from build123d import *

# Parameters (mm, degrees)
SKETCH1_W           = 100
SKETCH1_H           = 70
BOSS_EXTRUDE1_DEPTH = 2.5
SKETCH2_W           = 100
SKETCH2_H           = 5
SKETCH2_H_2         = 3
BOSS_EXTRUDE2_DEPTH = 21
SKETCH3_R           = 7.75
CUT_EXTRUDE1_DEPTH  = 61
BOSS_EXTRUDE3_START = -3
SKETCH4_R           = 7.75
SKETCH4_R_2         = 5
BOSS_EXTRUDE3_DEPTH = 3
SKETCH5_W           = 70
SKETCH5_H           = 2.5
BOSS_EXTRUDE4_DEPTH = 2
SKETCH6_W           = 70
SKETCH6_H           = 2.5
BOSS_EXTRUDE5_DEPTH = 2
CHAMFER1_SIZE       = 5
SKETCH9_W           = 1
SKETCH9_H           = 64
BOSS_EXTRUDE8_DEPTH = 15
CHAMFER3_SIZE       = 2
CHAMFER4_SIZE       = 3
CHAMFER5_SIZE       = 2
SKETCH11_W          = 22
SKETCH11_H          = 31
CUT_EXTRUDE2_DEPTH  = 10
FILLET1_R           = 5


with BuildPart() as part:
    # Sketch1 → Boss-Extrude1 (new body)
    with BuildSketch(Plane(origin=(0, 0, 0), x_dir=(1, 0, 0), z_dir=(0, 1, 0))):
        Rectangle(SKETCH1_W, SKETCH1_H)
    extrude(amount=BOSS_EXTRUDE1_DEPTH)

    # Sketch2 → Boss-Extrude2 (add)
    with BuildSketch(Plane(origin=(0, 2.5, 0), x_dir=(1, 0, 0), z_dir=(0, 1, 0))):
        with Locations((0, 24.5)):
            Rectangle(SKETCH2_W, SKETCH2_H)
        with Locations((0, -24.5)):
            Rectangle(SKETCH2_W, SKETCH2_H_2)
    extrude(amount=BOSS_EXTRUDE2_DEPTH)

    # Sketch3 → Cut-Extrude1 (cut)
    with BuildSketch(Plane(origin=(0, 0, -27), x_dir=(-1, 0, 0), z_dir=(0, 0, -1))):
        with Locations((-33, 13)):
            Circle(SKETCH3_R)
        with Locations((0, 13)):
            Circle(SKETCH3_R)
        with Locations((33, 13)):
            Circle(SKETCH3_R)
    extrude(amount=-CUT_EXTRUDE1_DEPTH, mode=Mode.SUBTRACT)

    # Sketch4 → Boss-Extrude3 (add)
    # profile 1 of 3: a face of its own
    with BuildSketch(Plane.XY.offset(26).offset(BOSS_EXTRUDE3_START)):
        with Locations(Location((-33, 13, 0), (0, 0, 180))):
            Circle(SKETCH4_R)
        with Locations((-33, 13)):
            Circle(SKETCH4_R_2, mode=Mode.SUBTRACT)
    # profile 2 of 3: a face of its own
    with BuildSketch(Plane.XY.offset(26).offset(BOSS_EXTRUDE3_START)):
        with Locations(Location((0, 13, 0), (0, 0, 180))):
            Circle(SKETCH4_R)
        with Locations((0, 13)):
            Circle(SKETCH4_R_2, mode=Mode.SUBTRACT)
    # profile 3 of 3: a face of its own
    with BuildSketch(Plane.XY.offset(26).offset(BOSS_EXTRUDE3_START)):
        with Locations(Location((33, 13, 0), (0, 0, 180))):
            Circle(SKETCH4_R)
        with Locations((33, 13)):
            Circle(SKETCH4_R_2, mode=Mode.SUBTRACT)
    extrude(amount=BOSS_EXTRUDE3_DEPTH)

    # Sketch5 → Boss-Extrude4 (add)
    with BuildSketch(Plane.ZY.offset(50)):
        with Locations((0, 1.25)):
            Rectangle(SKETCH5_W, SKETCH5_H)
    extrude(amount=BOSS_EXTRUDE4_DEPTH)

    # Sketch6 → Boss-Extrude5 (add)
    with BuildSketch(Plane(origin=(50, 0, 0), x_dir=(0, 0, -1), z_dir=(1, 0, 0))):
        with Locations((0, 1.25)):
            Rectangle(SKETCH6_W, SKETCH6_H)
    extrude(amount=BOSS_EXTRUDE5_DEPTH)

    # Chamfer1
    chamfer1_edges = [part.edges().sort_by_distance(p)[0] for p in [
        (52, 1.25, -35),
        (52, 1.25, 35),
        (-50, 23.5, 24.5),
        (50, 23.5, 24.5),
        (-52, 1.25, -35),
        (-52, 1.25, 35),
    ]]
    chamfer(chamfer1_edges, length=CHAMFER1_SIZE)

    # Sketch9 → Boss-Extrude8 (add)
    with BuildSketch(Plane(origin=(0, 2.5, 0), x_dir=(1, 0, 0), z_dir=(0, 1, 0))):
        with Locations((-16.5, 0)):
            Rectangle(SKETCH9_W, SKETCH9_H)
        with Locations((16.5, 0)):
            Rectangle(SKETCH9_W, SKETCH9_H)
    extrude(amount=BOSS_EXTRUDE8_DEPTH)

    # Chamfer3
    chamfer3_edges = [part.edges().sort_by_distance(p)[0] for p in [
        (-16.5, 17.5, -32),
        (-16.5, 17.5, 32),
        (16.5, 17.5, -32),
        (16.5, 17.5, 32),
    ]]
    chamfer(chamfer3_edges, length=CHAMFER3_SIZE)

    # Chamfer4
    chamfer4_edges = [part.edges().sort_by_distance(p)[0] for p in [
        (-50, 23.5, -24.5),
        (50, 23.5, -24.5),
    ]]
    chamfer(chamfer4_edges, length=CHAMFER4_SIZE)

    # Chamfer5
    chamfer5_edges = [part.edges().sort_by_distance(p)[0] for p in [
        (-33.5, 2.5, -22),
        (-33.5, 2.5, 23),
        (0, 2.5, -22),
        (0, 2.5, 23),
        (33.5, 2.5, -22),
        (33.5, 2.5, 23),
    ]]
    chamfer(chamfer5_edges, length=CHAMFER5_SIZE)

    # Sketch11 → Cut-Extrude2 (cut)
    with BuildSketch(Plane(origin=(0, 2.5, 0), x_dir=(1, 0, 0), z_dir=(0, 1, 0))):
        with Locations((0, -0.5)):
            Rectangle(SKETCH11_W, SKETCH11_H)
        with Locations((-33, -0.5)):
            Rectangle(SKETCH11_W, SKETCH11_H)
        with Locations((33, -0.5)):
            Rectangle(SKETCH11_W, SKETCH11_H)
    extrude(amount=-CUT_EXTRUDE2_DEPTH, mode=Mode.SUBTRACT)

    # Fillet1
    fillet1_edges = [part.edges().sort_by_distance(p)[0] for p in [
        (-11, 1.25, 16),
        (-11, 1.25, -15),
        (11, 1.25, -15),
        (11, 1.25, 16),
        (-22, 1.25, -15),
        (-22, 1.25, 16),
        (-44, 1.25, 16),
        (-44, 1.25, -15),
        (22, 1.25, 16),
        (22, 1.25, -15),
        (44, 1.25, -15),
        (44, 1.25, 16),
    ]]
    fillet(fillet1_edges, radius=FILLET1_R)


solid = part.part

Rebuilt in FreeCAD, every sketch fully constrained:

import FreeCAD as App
import Part
import Sketcher


def edges_at(feature, points):
    """Names of the edges that pass closest to the given points."""
    edges = feature.Shape.Edges
    near = lambda p: min(range(len(edges)), key=lambda i: edges[i].distToShape(Part.Vertex(*p))[0])
    return sorted({f"Edge{near(p) + 1}" for p in points})


def add_polygon(sketch, points):
    """Adds a closed chain of lines whose ends are joined by coincident constraints."""
    first, n = sketch.GeometryCount, len(points)
    for a, b in zip(points, points[1:] + points[:1]):
        sketch.addGeometry(Part.LineSegment(App.Vector(*a, 0), App.Vector(*b, 0)), False)
    for i in range(n):
        sketch.addConstraint(Sketcher.Constraint("Coincident", first + i, 2, first + (i + 1) % n, 1))

doc = App.newDocument("Part")
body = doc.addObject("PartDesign::Body", "Body")

# Sketch on XZ plane
sketch1 = body.newObject("Sketcher::SketchObject", "Sketch")
sketch1.AttachmentSupport = (doc.getObject("XZ_Plane"), [""])
sketch1.MapMode = "FlatFace"
add_polygon(sketch1, [(-50, -35), (-50, 35), (50, 35), (50, -35)])  # lines 0-3
sketch1.addConstraint([
    Sketcher.Constraint("Vertical", 0),
    Sketcher.Constraint("Horizontal", 1),
    Sketcher.Constraint("Vertical", 2),
    Sketcher.Constraint("Horizontal", 3),
    Sketcher.Constraint("Symmetric", 0, 2, 2, 2, -1, 1),
    Sketcher.Constraint("DistanceX", 1, 1, 1, 2, 100.0),
    Sketcher.Constraint("DistanceY", 0, 1, 0, 2, 70.0),
])
pad1 = body.newObject("PartDesign::Pad", "Pad")
pad1.Profile = sketch1
pad1.Length = 2.5
pad1.Reversed = True

# Sketch on XZ plane
sketch2 = body.newObject("Sketcher::SketchObject", "Sketch001")
sketch2.AttachmentSupport = (doc.getObject("XZ_Plane"), [""])
sketch2.MapMode = "FlatFace"
sketch2.AttachmentOffset = App.Placement(App.Vector(0, 0, -2.5), App.Rotation())
add_polygon(sketch2, [(-50, -27), (-50, -22), (50, -22), (50, -27)])  # lines 0-3
add_polygon(sketch2, [(-50, 23), (-50, 26), (50, 26), (50, 23)])  # lines 4-7
sketch2.addConstraint([
    Sketcher.Constraint("Vertical", 0),
    Sketcher.Constraint("Horizontal", 1),
    Sketcher.Constraint("Vertical", 2),
    Sketcher.Constraint("Horizontal", 3),
    Sketcher.Constraint("Vertical", 4),
    Sketcher.Constraint("Horizontal", 5),
    Sketcher.Constraint("Vertical", 6),
    Sketcher.Constraint("Horizontal", 7),
    Sketcher.Constraint("Vertical", 3, 2, 4, 2),
    Sketcher.Constraint("Vertical", 2, 2, 5, 2),
    Sketcher.Constraint("DistanceX", 1, 1, 1, 2, 100.0),
    Sketcher.Constraint("DistanceY", 0, 1, 0, 2, 5.0),
    Sketcher.Constraint("DistanceY", 4, 1, 4, 2, 3.0),
    Sketcher.Constraint("DistanceX", 0, 2, -1, 1, 50.0),
    Sketcher.Constraint("DistanceY", 0, 2, -1, 1, 22.0),
    Sketcher.Constraint("DistanceY", -1, 1, 4, 2, 26.0),
])
pad2 = body.newObject("PartDesign::Pad", "Pad001")
pad2.Profile = sketch2
pad2.Length = 21
pad2.Reversed = True

# Sketch on XY plane
sketch3 = body.newObject("Sketcher::SketchObject", "Sketch002")
sketch3.AttachmentSupport = (doc.getObject("XY_Plane"), [""])
sketch3.MapMode = "FlatFace"
sketch3.AttachmentOffset = App.Placement(App.Vector(0, 0, -27), App.Rotation())
sketch3.addGeometry([
    Part.Circle(App.Vector(33, 13, 0), App.Vector(0, 0, 1), 8),
    Part.Circle(App.Vector(0, 13, 0), App.Vector(0, 0, 1), 8),
    Part.Circle(App.Vector(-33, 13, 0), App.Vector(0, 0, 1), 8),
], False)
sketch3.addConstraint([
    Sketcher.Constraint("Equal", 0, 1),
    Sketcher.Constraint("Equal", 1, 2),
    Sketcher.Constraint("Symmetric", 0, 3, 2, 3, -2),
    Sketcher.Constraint("PointOnObject", 1, 3, -2),
    Sketcher.Constraint("Horizontal", 0, 3, 1, 3),
    Sketcher.Constraint("Diameter", 0, 15.5),
    Sketcher.Constraint("DistanceX", -1, 1, 0, 3, 33.0),
    Sketcher.Constraint("DistanceY", -1, 1, 0, 3, 13.0),
])
pocket1 = body.newObject("PartDesign::Pocket", "Pocket")
pocket1.Profile = sketch3
pocket1.Length = 61
pocket1.Reversed = True

# Sketch on XY plane
sketch4 = body.newObject("Sketcher::SketchObject", "Sketch003")
sketch4.AttachmentSupport = (doc.getObject("XY_Plane"), [""])
sketch4.MapMode = "FlatFace"
sketch4.AttachmentOffset = App.Placement(App.Vector(0, 0, 23), App.Rotation())
sketch4.addGeometry([
    Part.Circle(App.Vector(-33, 13, 0), App.Vector(0, 0, 1), 8),  # 0
    Part.Circle(App.Vector(-33, 13, 0), App.Vector(0, 0, 1), 5),  # 1
    Part.Circle(App.Vector(0, 13, 0), App.Vector(0, 0, 1), 8),  # 2
    Part.Circle(App.Vector(0, 13, 0), App.Vector(0, 0, 1), 5),  # 3
    Part.Circle(App.Vector(33, 13, 0), App.Vector(0, 0, 1), 8),  # 4
    Part.Circle(App.Vector(33, 13, 0), App.Vector(0, 0, 1), 5),  # 5
], False)
sketch4.addConstraint([
    Sketcher.Constraint("Coincident", 1, 3, 0, 3),
    Sketcher.Constraint("Coincident", 3, 3, 2, 3),
    Sketcher.Constraint("Coincident", 5, 3, 4, 3),
    Sketcher.Constraint("Equal", 0, 2),
    Sketcher.Constraint("Equal", 1, 3),
    Sketcher.Constraint("Equal", 2, 4),
    Sketcher.Constraint("Equal", 3, 5),
    Sketcher.Constraint("Symmetric", 0, 3, 4, 3, -2),
    Sketcher.Constraint("PointOnObject", 2, 3, -2),
    Sketcher.Constraint("Horizontal", 1, 3, 2, 3),
    Sketcher.Constraint("Diameter", 1, 10.0),
    Sketcher.Constraint("Diameter", 0, 15.5),
    Sketcher.Constraint("DistanceX", 0, 3, -1, 1, 33.0),
    Sketcher.Constraint("DistanceY", -1, 1, 0, 3, 13.0),
])
pad3 = body.newObject("PartDesign::Pad", "Pad002")
pad3.Profile = sketch4
pad3.Length = 3

# Sketch on YZ plane
sketch5 = body.newObject("Sketcher::SketchObject", "Sketch004")
sketch5.AttachmentSupport = (doc.getObject("YZ_Plane"), [""])
sketch5.MapMode = "FlatFace"
sketch5.AttachmentOffset = App.Placement(App.Vector(0, 0, -50), App.Rotation())
add_polygon(sketch5, [(2.5, -35), (0, -35), (0, 35), (2.5, 35)])  # lines 0-3
sketch5.addConstraint([
    Sketcher.Constraint("Horizontal", 0),
    Sketcher.Constraint("Vertical", 1),
    Sketcher.Constraint("Horizontal", 2),
    Sketcher.Constraint("Vertical", 3),
    Sketcher.Constraint("Symmetric", 0, 2, 1, 2, -1, 1),
    Sketcher.Constraint("DistanceY", 1, 1, 1, 2, 70.0),
    Sketcher.Constraint("DistanceX", 0, 2, 0, 1, 2.5),
])
pad4 = body.newObject("PartDesign::Pad", "Pad003")
pad4.Profile = sketch5
pad4.Length = 2
pad4.Reversed = True

# Sketch on YZ plane
sketch6 = body.newObject("Sketcher::SketchObject", "Sketch005")
sketch6.AttachmentSupport = (doc.getObject("YZ_Plane"), [""])
sketch6.MapMode = "FlatFace"
sketch6.AttachmentOffset = App.Placement(App.Vector(0, 0, 50), App.Rotation())
add_polygon(sketch6, [(2.5, 35), (0, 35), (0, -35), (2.5, -35)])  # lines 0-3
sketch6.addConstraint([
    Sketcher.Constraint("Horizontal", 0),
    Sketcher.Constraint("Vertical", 1),
    Sketcher.Constraint("Horizontal", 2),
    Sketcher.Constraint("Vertical", 3),
    Sketcher.Constraint("Symmetric", 0, 2, 1, 2, -1, 1),
    Sketcher.Constraint("DistanceY", 1, 2, 1, 1, 70.0),
    Sketcher.Constraint("DistanceX", 0, 2, 0, 1, 2.5),
])
pad5 = body.newObject("PartDesign::Pad", "Pad004")
pad5.Profile = sketch6
pad5.Length = 2
doc.recompute()

chamfer = body.newObject("PartDesign::Chamfer", "Chamfer")
chamfer.Base = (pad5, edges_at(pad5, [
    (52, 1.25, -35),
    (52, 1.25, 35),
    (-50, 23.5, 24.5),
    (50, 23.5, 24.5),
    (-52, 1.25, -35),
    (-52, 1.25, 35),
]))
chamfer.Size = 5

# Sketch on XZ plane
sketch7 = body.newObject("Sketcher::SketchObject", "Sketch006")
sketch7.AttachmentSupport = (doc.getObject("XZ_Plane"), [""])
sketch7.MapMode = "FlatFace"
sketch7.AttachmentOffset = App.Placement(App.Vector(0, 0, -2.5), App.Rotation())
add_polygon(sketch7, [(-17, -32), (-17, 32), (-16, 32), (-16, -32)])  # lines 0-3
add_polygon(sketch7, [(16, -32), (16, 32), (17, 32), (17, -32)])  # lines 4-7
sketch7.addConstraint([
    Sketcher.Constraint("Vertical", 0),
    Sketcher.Constraint("Horizontal", 1),
    Sketcher.Constraint("Vertical", 2),
    Sketcher.Constraint("Horizontal", 3),
    Sketcher.Constraint("Vertical", 4),
    Sketcher.Constraint("Horizontal", 5),
    Sketcher.Constraint("Vertical", 6),
    Sketcher.Constraint("Horizontal", 7),
    Sketcher.Constraint("Symmetric", 2, 2, 4, 2, -1, 1),
    Sketcher.Constraint("Symmetric", 0, 2, 6, 2, -1, 1),
    Sketcher.Constraint("Horizontal", 1, 2, 4, 2),
    Sketcher.Constraint("DistanceX", 1, 1, 1, 2, 1.0),
    Sketcher.Constraint("DistanceY", 0, 1, 0, 2, 64.0),
    Sketcher.Constraint("DistanceX", 0, 2, -1, 1, 17.0),
])
pad6 = body.newObject("PartDesign::Pad", "Pad005")
pad6.Profile = sketch7
pad6.Length = 15
pad6.Reversed = True
doc.recompute()

chamfer2 = body.newObject("PartDesign::Chamfer", "Chamfer001")
chamfer2.Base = (pad6, edges_at(pad6, [
    (-16.5, 17.5, -32),
    (-16.5, 17.5, 32),
    (16.5, 17.5, -32),
    (16.5, 17.5, 32),
]))
chamfer2.Size = 2
doc.recompute()

chamfer3 = body.newObject("PartDesign::Chamfer", "Chamfer002")
chamfer3.Base = (chamfer2, edges_at(chamfer2, [(-50, 23.5, -24.5), (50, 23.5, -24.5)]))
chamfer3.Size = 3
doc.recompute()

chamfer4 = body.newObject("PartDesign::Chamfer", "Chamfer003")
chamfer4.Base = (chamfer3, edges_at(chamfer3, [
    (-33.5, 2.5, -22),
    (-33.5, 2.5, 23),
    (0, 2.5, -22),
    (0, 2.5, 23),
    (33.5, 2.5, -22),
    (33.5, 2.5, 23),
]))
chamfer4.Size = 2

# Sketch on XZ plane
sketch8 = body.newObject("Sketcher::SketchObject", "Sketch007")
sketch8.AttachmentSupport = (doc.getObject("XZ_Plane"), [""])
sketch8.MapMode = "FlatFace"
sketch8.AttachmentOffset = App.Placement(App.Vector(0, 0, -2.5), App.Rotation())
add_polygon(sketch8, [(-11, -15), (-11, 16), (11, 16), (11, -15)])  # lines 0-3
add_polygon(sketch8, [(-44, -15), (-44, 16), (-22, 16), (-22, -15)])  # lines 4-7
add_polygon(sketch8, [(22, -15), (22, 16), (44, 16), (44, -15)])  # lines 8-11
sketch8.addConstraint([
    Sketcher.Constraint("Vertical", 0),
    Sketcher.Constraint("Horizontal", 1),
    Sketcher.Constraint("Vertical", 2),
    Sketcher.Constraint("Horizontal", 3),
    Sketcher.Constraint("Vertical", 4),
    Sketcher.Constraint("Horizontal", 5),
    Sketcher.Constraint("Vertical", 6),
    Sketcher.Constraint("Horizontal", 7),
    Sketcher.Constraint("Vertical", 8),
    Sketcher.Constraint("Horizontal", 9),
    Sketcher.Constraint("Vertical", 10),
    Sketcher.Constraint("Horizontal", 11),
    Sketcher.Constraint("Symmetric", 5, 2, 8, 2, -2),
    Sketcher.Constraint("Symmetric", 7, 2, 10, 2, -2),
    Sketcher.Constraint("Horizontal", 1, 2, 4, 2),
    Sketcher.Constraint("Horizontal", 3, 2, 6, 2),
    Sketcher.Constraint("Equal", 3, 5),
    Sketcher.Constraint("DistanceX", 1, 1, 1, 2, 22.0),
    Sketcher.Constraint("DistanceY", 0, 1, 0, 2, 31.0),
    Sketcher.Constraint("DistanceX", 0, 2, -1, 1, 11.0),
    Sketcher.Constraint("DistanceY", -1, 1, 0, 2, 16.0),
    Sketcher.Constraint("DistanceX", 4, 2, -1, 1, 44.0),
])
pocket2 = body.newObject("PartDesign::Pocket", "Pocket001")
pocket2.Profile = sketch8
pocket2.Length = 10
pocket2.Reversed = True
doc.recompute()

fillet = body.newObject("PartDesign::Fillet", "Fillet")
fillet.Base = (pocket2, edges_at(pocket2, [
    (-11, 1.25, 16),
    (-11, 1.25, -15),
    (11, 1.25, -15),
    (11, 1.25, 16),
    (-22, 1.25, -15),
    (-22, 1.25, 16),
    (-44, 1.25, 16),
    (-44, 1.25, -15),
    (22, 1.25, 16),
    (22, 1.25, -15),
    (44, 1.25, -15),
    (44, 1.25, 16),
]))
fillet.Radius = 5

doc.recompute()
